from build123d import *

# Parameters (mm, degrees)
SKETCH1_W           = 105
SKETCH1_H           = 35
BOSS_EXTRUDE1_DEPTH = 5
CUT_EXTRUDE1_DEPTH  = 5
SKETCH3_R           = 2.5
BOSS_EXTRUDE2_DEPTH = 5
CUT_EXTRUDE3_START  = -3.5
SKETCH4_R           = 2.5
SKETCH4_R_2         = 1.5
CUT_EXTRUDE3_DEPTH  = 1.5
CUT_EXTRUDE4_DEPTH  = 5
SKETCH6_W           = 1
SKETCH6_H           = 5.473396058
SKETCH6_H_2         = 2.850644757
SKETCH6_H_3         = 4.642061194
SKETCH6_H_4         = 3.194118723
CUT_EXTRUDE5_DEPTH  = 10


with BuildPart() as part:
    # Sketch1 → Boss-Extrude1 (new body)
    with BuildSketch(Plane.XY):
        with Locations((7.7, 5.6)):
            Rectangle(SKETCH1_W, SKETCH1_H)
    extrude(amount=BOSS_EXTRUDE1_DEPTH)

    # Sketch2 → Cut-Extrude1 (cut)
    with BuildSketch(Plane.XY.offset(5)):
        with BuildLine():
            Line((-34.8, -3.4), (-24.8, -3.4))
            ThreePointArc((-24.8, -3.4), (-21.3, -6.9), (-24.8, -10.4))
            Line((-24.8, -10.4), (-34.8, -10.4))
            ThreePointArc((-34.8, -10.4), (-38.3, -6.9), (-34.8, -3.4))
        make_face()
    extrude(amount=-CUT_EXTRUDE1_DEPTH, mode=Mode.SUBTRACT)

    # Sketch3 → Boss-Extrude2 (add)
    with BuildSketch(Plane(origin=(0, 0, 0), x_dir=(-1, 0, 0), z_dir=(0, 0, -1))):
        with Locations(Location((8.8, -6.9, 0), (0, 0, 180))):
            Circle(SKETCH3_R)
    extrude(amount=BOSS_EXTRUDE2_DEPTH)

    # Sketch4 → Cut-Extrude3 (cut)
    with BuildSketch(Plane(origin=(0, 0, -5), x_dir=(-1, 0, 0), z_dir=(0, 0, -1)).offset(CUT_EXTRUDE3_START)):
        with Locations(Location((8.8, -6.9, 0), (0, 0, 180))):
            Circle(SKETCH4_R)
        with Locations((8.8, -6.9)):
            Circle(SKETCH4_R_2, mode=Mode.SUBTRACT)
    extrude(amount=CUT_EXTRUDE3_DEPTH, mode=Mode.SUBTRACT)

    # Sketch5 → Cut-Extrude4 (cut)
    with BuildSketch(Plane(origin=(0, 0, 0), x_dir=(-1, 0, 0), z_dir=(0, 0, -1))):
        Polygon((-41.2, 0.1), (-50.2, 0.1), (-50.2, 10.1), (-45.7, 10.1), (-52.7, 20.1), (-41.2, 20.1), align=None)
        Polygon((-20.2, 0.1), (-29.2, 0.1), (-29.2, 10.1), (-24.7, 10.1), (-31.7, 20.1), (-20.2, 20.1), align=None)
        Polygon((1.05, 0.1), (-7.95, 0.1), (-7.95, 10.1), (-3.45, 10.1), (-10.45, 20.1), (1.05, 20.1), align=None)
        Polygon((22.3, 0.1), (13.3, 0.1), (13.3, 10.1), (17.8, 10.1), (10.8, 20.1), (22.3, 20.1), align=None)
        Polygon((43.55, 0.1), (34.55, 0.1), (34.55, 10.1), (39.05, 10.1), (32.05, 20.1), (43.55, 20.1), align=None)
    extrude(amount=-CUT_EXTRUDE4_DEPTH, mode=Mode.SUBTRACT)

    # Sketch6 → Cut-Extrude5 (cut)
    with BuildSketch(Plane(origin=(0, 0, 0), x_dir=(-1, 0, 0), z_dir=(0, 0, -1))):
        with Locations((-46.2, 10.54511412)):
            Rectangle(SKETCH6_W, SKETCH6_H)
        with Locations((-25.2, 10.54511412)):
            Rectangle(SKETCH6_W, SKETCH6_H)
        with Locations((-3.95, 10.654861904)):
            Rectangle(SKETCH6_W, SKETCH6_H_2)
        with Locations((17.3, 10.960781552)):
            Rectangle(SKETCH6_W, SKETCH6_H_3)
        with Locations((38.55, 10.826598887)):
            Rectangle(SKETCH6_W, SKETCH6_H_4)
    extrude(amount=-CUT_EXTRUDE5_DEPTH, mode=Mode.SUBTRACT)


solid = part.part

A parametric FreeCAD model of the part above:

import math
import FreeCAD as App
import Part
import Sketcher

V = App.Vector

doc = App.newDocument("Part")
body = doc.addObject("PartDesign::Body", "Body")

sketch1 = body.newObject("Sketcher::SketchObject", "Sketch")
sketch1.AttachmentSupport = (doc.getObject("XY_Plane"), [""])
sketch1.MapMode = "FlatFace"
sketch1.addGeometry(Part.LineSegment(V(-44.8, 23.1, 0), V(-44.8, -11.9, 0)), False)
sketch1.addGeometry(Part.LineSegment(V(-44.8, -11.9, 0), V(60.2, -11.9, 0)), False)
sketch1.addGeometry(Part.LineSegment(V(60.2, -11.9, 0), V(60.2, 23.1, 0)), False)
sketch1.addGeometry(Part.LineSegment(V(60.2, 23.1, 0), V(-44.8, 23.1, 0)), False)
sketch1.addConstraint(Sketcher.Constraint("Coincident", 0, 2, 1, 1))
sketch1.addConstraint(Sketcher.Constraint("Coincident", 1, 2, 2, 1))
sketch1.addConstraint(Sketcher.Constraint("Coincident", 2, 2, 3, 1))
sketch1.addConstraint(Sketcher.Constraint("Coincident", 3, 2, 0, 1))
sketch1.addConstraint(Sketcher.Constraint("Vertical", 0))
sketch1.addConstraint(Sketcher.Constraint("Horizontal", 1))
sketch1.addConstraint(Sketcher.Constraint("Vertical", 2))
sketch1.addConstraint(Sketcher.Constraint("Horizontal", 3))
sketch1.addConstraint(Sketcher.Constraint("DistanceX", 1, 1, 1, 2, 105.0))
sketch1.addConstraint(Sketcher.Constraint("DistanceY", 0, 2, 0, 1, 35.0))
sketch1.addConstraint(Sketcher.Constraint("DistanceX", 0, 2, -1, 1, 44.8))
sketch1.addConstraint(Sketcher.Constraint("DistanceY", 0, 2, -1, 1, 11.9))
pad1 = body.newObject("PartDesign::Pad", "Pad")
pad1.Profile = sketch1
pad1.Length = 5

sketch2 = body.newObject("Sketcher::SketchObject", "Sketch001")
sketch2.AttachmentSupport = (doc.getObject("XY_Plane"), [""])
sketch2.MapMode = "FlatFace"
sketch2.AttachmentOffset = App.Placement(V(0, 0, 5), App.Rotation())
sketch2.addGeometry(Part.LineSegment(V(-24.8, -3.4, 0), V(-34.8, -3.4, 0)), False)
sketch2.addGeometry(Part.ArcOfCircle(Part.Circle(V(-34.8, -6.9, 0), V(0, 0, 1), 3.5), math.radians(90), math.radians(270)), False)
sketch2.addGeometry(Part.LineSegment(V(-34.8, -10.4, 0), V(-24.8, -10.4, 0)), False)
sketch2.addGeometry(Part.ArcOfCircle(Part.Circle(V(-24.8, -6.9, 0), V(0, 0, 1), 3.5), math.radians(-90), math.radians(90)), False)
sketch2.addConstraint(Sketcher.Constraint("Tangent", 0, 2, 1, 1))
sketch2.addConstraint(Sketcher.Constraint("Tangent", 1, 2, 2, 1))
sketch2.addConstraint(Sketcher.Constraint("Tangent", 2, 2, 3, 1))
sketch2.addConstraint(Sketcher.Constraint("Tangent", 3, 2, 0, 1))
sketch2.addConstraint(Sketcher.Constraint("Horizontal", 0))
sketch2.addConstraint(Sketcher.Constraint("Horizontal", 2))
sketch2.addConstraint(Sketcher.Constraint("Radius", 1, 3.5))
sketch2.addConstraint(Sketcher.Constraint("DistanceX", 0, 2, 0, 1, 10.0))
sketch2.addConstraint(Sketcher.Constraint("DistanceX", 1, 3, -1, 1, 34.8))
sketch2.addConstraint(Sketcher.Constraint("DistanceY", 1, 3, -1, 1, 6.9))
pocket1 = body.newObject("PartDesign::Pocket", "Pocket")
pocket1.Profile = sketch2
pocket1.Length = 5

sketch3 = body.newObject("Sketcher::SketchObject", "Sketch002")
sketch3.AttachmentSupport = (doc.getObject("XY_Plane"), [""])
sketch3.MapMode = "FlatFace"
sketch3.addGeometry(Part.Circle(V(-8.8, -6.9, 0), V(0, 0, 1), 2.5), False)
sketch3.addConstraint(Sketcher.Constraint("Diameter", 0, 5.0))
sketch3.addConstraint(Sketcher.Constraint("DistanceX", 0, 3, -1, 1, 8.8))
sketch3.addConstraint(Sketcher.Constraint("DistanceY", 0, 3, -1, 1, 6.9))
pad2 = body.newObject("PartDesign::Pad", "Pad001")
pad2.Profile = sketch3
pad2.Length = 5
pad2.Reversed = True

sketch4 = body.newObject("Sketcher::SketchObject", "Sketch003")
sketch4.AttachmentSupport = (doc.getObject("XY_Plane"), [""])
sketch4.MapMode = "FlatFace"
sketch4.AttachmentOffset = App.Placement(V(0, 0, -1.5), App.Rotation())
sketch4.addGeometry(Part.Circle(V(-8.8, -6.9, 0), V(0, 0, 1), 2.5), False)
sketch4.addGeometry(Part.Circle(V(-8.8, -6.9, 0), V(0, 0, 1), 1.5), False)
sketch4.addConstraint(Sketcher.Constraint("Coincident", 1, 3, 0, 3))
sketch4.addConstraint(Sketcher.Constraint("Diameter", 0, 5.0))
sketch4.addConstraint(Sketcher.Constraint("Diameter", 1, 3.0))
sketch4.addConstraint(Sketcher.Constraint("DistanceX", 0, 3, -1, 1, 8.8))
sketch4.addConstraint(Sketcher.Constraint("DistanceY", 0, 3, -1, 1, 6.9))
pocket2 = body.newObject("PartDesign::Pocket", "Pocket001")
pocket2.Profile = sketch4
pocket2.Length = 1.5

sketch5 = body.newObject("Sketcher::SketchObject", "Sketch004")
sketch5.AttachmentSupport = (doc.getObject("XY_Plane"), [""])
sketch5.MapMode = "FlatFace"
sketch5.addGeometry(Part.LineSegment(V(50.2, 0.1, 0), V(41.2, 0.1, 0)), False)
sketch5.addGeometry(Part.LineSegment(V(41.2, 0.1, 0), V(41.2, 20.1, 0)), False)
sketch5.addGeometry(Part.LineSegment(V(41.2, 20.1, 0), V(52.7, 20.1, 0)), False)
sketch5.addGeometry(Part.LineSegment(V(52.7, 20.1, 0), V(45.7, 10.1, 0)), False)
sketch5.addGeometry(Part.LineSegment(V(45.7, 10.1, 0), V(50.2, 10.1, 0)), False)
sketch5.addGeometry(Part.LineSegment(V(50.2, 10.1, 0), V(50.2, 0.1, 0)), False)
sketch5.addGeometry(Part.LineSegment(V(29.2, 0.1, 0), V(20.2, 0.1, 0)), False)
sketch5.addGeometry(Part.LineSegment(V(20.2, 0.1, 0), V(20.2, 20.1, 0)), False)
sketch5.addGeometry(Part.LineSegment(V(20.2, 20.1, 0), V(31.7, 20.1, 0)), False)
sketch5.addGeometry(Part.LineSegment(V(31.7, 20.1, 0), V(24.7, 10.1, 0)), False)
sketch5.addGeometry(Part.LineSegment(V(24.7, 10.1, 0), V(29.2, 10.1, 0)), False)
sketch5.addGeometry(Part.LineSegment(V(29.2, 10.1, 0), V(29.2, 0.1, 0)), False)
sketch5.addGeometry(Part.LineSegment(V(7.95, 0.1, 0), V(-1.05, 0.1, 0)), False)
sketch5.addGeometry(Part.LineSegment(V(-1.05, 0.1, 0), V(-1.05, 20.1, 0)), False)
sketch5.addGeometry(Part.LineSegment(V(-1.05, 20.1, 0), V(10.45, 20.1, 0)), False)
sketch5.addGeometry(Part.LineSegment(V(10.45, 20.1, 0), V(3.45, 10.1, 0)), False)
sketch5.addGeometry(Part.LineSegment(V(3.45, 10.1, 0), V(7.95, 10.1, 0)), False)
sketch5.addGeometry(Part.LineSegment(V(7.95, 10.1, 0), V(7.95, 0.1, 0)), False)
sketch5.addGeometry(Part.LineSegment(V(-13.3, 0.1, 0), V(-22.3, 0.1, 0)), False)
sketch5.addGeometry(Part.LineSegment(V(-22.3, 0.1, 0), V(-22.3, 20.1, 0)), False)
sketch5.addGeometry(Part.LineSegment(V(-22.3, 20.1, 0), V(-10.8, 20.1, 0)), False)
sketch5.addGeometry(Part.LineSegment(V(-10.8, 20.1, 0), V(-17.8, 10.1, 0)), False)
sketch5.addGeometry(Part.LineSegment(V(-17.8, 10.1, 0), V(-13.3, 10.1, 0)), False)
sketch5.addGeometry(Part.LineSegment(V(-13.3, 10.1, 0), V(-13.3, 0.1, 0)), False)
sketch5.addGeometry(Part.LineSegment(V(-34.55, 0.1, 0), V(-43.55, 0.1, 0)), False)
sketch5.addGeometry(Part.LineSegment(V(-43.55, 0.1, 0), V(-43.55, 20.1, 0)), False)
sketch5.addGeometry(Part.LineSegment(V(-43.55, 20.1, 0), V(-32.05, 20.1, 0)), False)
sketch5.addGeometry(Part.LineSegment(V(-32.05, 20.1, 0), V(-39.05, 10.1, 0)), False)
sketch5.addGeometry(Part.LineSegment(V(-39.05, 10.1, 0), V(-34.55, 10.1, 0)), False)
sketch5.addGeometry(Part.LineSegment(V(-34.55, 10.1, 0), V(-34.55, 0.1, 0)), False)
sketch5.addConstraint(Sketcher.Constraint("Coincident", 0, 2, 1, 1))
sketch5.addConstraint(Sketcher.Constraint("Coincident", 1, 2, 2, 1))
sketch5.addConstraint(Sketcher.Constraint("Coincident", 2, 2, 3, 1))
sketch5.addConstraint(Sketcher.Constraint("Coincident", 3, 2, 4, 1))
sketch5.addConstraint(Sketcher.Constraint("Coincident", 4, 2, 5, 1))
sketch5.addConstraint(Sketcher.Constraint("Coincident", 5, 2, 0, 1))
sketch5.addConstraint(Sketcher.Constraint("Coincident", 6, 2, 7, 1))
sketch5.addConstraint(Sketcher.Constraint("Coincident", 7, 2, 8, 1))
sketch5.addConstraint(Sketcher.Constraint("Coincident", 8, 2, 9, 1))
sketch5.addConstraint(Sketcher.Constraint("Coincident", 9, 2, 10, 1))
sketch5.addConstraint(Sketcher.Constraint("Coincident", 10, 2, 11, 1))
sketch5.addConstraint(Sketcher.Constraint("Coincident", 11, 2, 6, 1))
sketch5.addConstraint(Sketcher.Constraint("Coincident", 12, 2, 13, 1))
sketch5.addConstraint(Sketcher.Constraint("Coincident", 13, 2, 14, 1))
sketch5.addConstraint(Sketcher.Constraint("Coincident", 14, 2, 15, 1))
sketch5.addConstraint(Sketcher.Constraint("Coincident", 15, 2, 16, 1))
sketch5.addConstraint(Sketcher.Constraint("Coincident", 16, 2, 17, 1))
sketch5.addConstraint(Sketcher.Constraint("Coincident", 17, 2, 12, 1))
sketch5.addConstraint(Sketcher.Constraint("Coincident", 18, 2, 19, 1))
sketch5.addConstraint(Sketcher.Constraint("Coincident", 19, 2, 20, 1))
sketch5.addConstraint(Sketcher.Constraint("Coincident", 20, 2, 21, 1))
sketch5.addConstraint(Sketcher.Constraint("Coincident", 21, 2, 22, 1))
sketch5.addConstraint(Sketcher.Constraint("Coincident", 22, 2, 23, 1))
sketch5.addConstraint(Sketcher.Constraint("Coincident", 23, 2, 18, 1))
sketch5.addConstraint(Sketcher.Constraint("Coincident", 24, 2, 25, 1))
sketch5.addConstraint(Sketcher.Constraint("Coincident", 25, 2, 26, 1))
sketch5.addConstraint(Sketcher.Constraint("Coincident", 26, 2, 27, 1))
sketch5.addConstraint(Sketcher.Constraint("Coincident", 27, 2, 28, 1))
sketch5.addConstraint(Sketcher.Constraint("Coincident", 28, 2, 29, 1))
sketch5.addConstraint(Sketcher.Constraint("Coincident", 29, 2, 24, 1))
sketch5.addConstraint(Sketcher.Constraint("Horizontal", 0))
sketch5.addConstraint(Sketcher.Constraint("Vertical", 1))
sketch5.addConstraint(Sketcher.Constraint("Horizontal", 2))
sketch5.addConstraint(Sketcher.Constraint("Horizontal", 4))
sketch5.addConstraint(Sketcher.Constraint("Vertical", 5))
sketch5.addConstraint(Sketcher.Constraint("Horizontal", 6))
sketch5.addConstraint(Sketcher.Constraint("Vertical", 7))
sketch5.addConstraint(Sketcher.Constraint("Horizontal", 8))
sketch5.addConstraint(Sketcher.Constraint("Horizontal", 10))
sketch5.addConstraint(Sketcher.Constraint("Vertical", 11))
sketch5.addConstraint(Sketcher.Constraint("Horizontal", 12))
sketch5.addConstraint(Sketcher.Constraint("Vertical", 13))
sketch5.addConstraint(Sketcher.Constraint("Horizontal", 14))
sketch5.addConstraint(Sketcher.Constraint("Horizontal", 16))
sketch5.addConstraint(Sketcher.Constraint("Vertical", 17))
sketch5.addConstraint(Sketcher.Constraint("Horizontal", 18))
sketch5.addConstraint(Sketcher.Constraint("Vertical", 19))
sketch5.addConstraint(Sketcher.Constraint("Horizontal", 20))
sketch5.addConstraint(Sketcher.Constraint("Horizontal", 22))
sketch5.addConstraint(Sketcher.Constraint("Vertical", 23))
sketch5.addConstraint(Sketcher.Constraint("Horizontal", 24))
sketch5.addConstraint(Sketcher.Constraint("Vertical", 25))
sketch5.addConstraint(Sketcher.Constraint("Horizontal", 26))
sketch5.addConstraint(Sketcher.Constraint("Horizontal", 28))
sketch5.addConstraint(Sketcher.Constraint("Vertical", 29))
sketch5.addConstraint(Sketcher.Constraint("Parallel", 3, 9))
sketch5.addConstraint(Sketcher.Constraint("Parallel", 9, 15))
sketch5.addConstraint(Sketcher.Constraint("Parallel", 15, 21))
sketch5.addConstraint(Sketcher.Constraint("Parallel", 21, 27))
sketch5.addConstraint(Sketcher.Constraint("Horizontal", 5, 2, 6, 2))
sketch5.addConstraint(Sketcher.Constraint("Horizontal", 2, 2, 7, 2))
sketch5.addConstraint(Sketcher.Constraint("Horizontal", 4, 2, 9, 2))
sketch5.addConstraint(Sketcher.Constraint("Horizontal", 11, 2, 12, 2))
sketch5.addConstraint(Sketcher.Constraint("Horizontal", 8, 2, 13, 2))
sketch5.addConstraint(Sketcher.Constraint("Horizontal", 10, 2, 15, 2))
sketch5.addConstraint(Sketcher.Constraint("Horizontal", 17, 2, 18, 2))
sketch5.addConstraint(Sketcher.Constraint("Horizontal", 14, 2, 19, 2))
sketch5.addConstraint(Sketcher.Constraint("Horizontal", 16, 2, 21, 2))
sketch5.addConstraint(Sketcher.Constraint("Horizontal", 23, 2, 24, 2))
sketch5.addConstraint(Sketcher.Constraint("Horizontal", 20, 2, 25, 2))
sketch5.addConstraint(Sketcher.Constraint("Horizontal", 22, 2, 27, 2))
sketch5.addConstraint(Sketcher.Constraint("Equal", 0, 6))
sketch5.addConstraint(Sketcher.Constraint("Equal", 2, 8))
sketch5.addConstraint(Sketcher.Constraint("Equal", 6, 12))
sketch5.addConstraint(Sketcher.Constraint("Equal", 8, 14))
sketch5.addConstraint(Sketcher.Constraint("Equal", 12, 18))
sketch5.addConstraint(Sketcher.Constraint("Equal", 14, 20))
sketch5.addConstraint(Sketcher.Constraint("Equal", 18, 24))
sketch5.addConstraint(Sketcher.Constraint("Equal", 20, 26))
sketch5.addConstraint(Sketcher.Constraint("DistanceX", 0, 2, 0, 1, 9.0))
sketch5.addConstraint(Sketcher.Constraint("DistanceY", 1, 1, 1, 2, 20.0))
sketch5.addConstraint(Sketcher.Constraint("DistanceY", 5, 2, 5, 1, 10.0))
sketch5.addConstraint(Sketcher.Constraint("DistanceX", 2, 1, 2, 2, 11.5))
sketch5.addConstraint(Sketcher.Constraint("DistanceX", 4, 1, 4, 2, 4.5))
sketch5.addConstraint(Sketcher.Constraint("DistanceX", 6, 2, 0, 2, 21.0))
sketch5.addConstraint(Sketcher.Constraint("DistanceX", -1, 1, 0, 2, 41.2))
sketch5.addConstraint(Sketcher.Constraint("DistanceY", -1, 1, 0, 2, 0.1))
sketch5.addConstraint(Sketcher.Constraint("DistanceX", 18, 2, -1, 1, 22.3))
sketch5.addConstraint(Sketcher.Constraint("DistanceX", 12, 2, -1, 1, 1.05))
sketch5.addConstraint(Sketcher.Constraint("DistanceX", 24, 2, -1, 1, 43.55))
pocket3 = body.newObject("PartDesign::Pocket", "Pocket002")
pocket3.Profile = sketch5
pocket3.Length = 5
pocket3.Reversed = True

sketch6 = body.newObject("Sketcher::SketchObject", "Sketch005")
sketch6.AttachmentSupport = (doc.getObject("XY_Plane"), [""])
sketch6.MapMode = "FlatFace"
sketch6.addGeometry(Part.LineSegment(V(46.7, 13.281812, 0), V(46.7, 7.808416, 0)), False)
sketch6.addGeometry(Part.LineSegment(V(46.7, 7.808416, 0), V(45.7, 7.808416, 0)), False)
sketch6.addGeometry(Part.LineSegment(V(45.7, 7.808416, 0), V(45.7, 13.281812, 0)), False)
sketch6.addGeometry(Part.LineSegment(V(45.7, 13.281812, 0), V(46.7, 13.281812, 0)), False)
sketch6.addGeometry(Part.LineSegment(V(25.7, 13.281812, 0), V(25.7, 7.808416, 0)), False)
sketch6.addGeometry(Part.LineSegment(V(25.7, 7.808416, 0), V(24.7, 7.808416, 0)), False)
sketch6.addGeometry(Part.LineSegment(V(24.7, 7.808416, 0), V(24.7, 13.281812, 0)), False)
sketch6.addGeometry(Part.LineSegment(V(24.7, 13.281812, 0), V(25.7, 13.281812, 0)), False)
sketch6.addGeometry(Part.LineSegment(V(4.45, 12.080184, 0), V(4.45, 9.22954, 0)), False)
sketch6.addGeometry(Part.LineSegment(V(4.45, 9.22954, 0), V(3.45, 9.22954, 0)), False)
sketch6.addGeometry(Part.LineSegment(V(3.45, 9.22954, 0), V(3.45, 12.080184, 0)), False)
sketch6.addGeometry(Part.LineSegment(V(3.45, 12.080184, 0), V(4.45, 12.080184, 0)), False)
sketch6.addGeometry(Part.LineSegment(V(-16.8, 13.281812, 0), V(-16.8, 8.639751, 0)), False)
sketch6.addGeometry(Part.LineSegment(V(-16.8, 8.639751, 0), V(-17.8, 8.639751, 0)), False)
sketch6.addGeometry(Part.LineSegment(V(-17.8, 8.639751, 0), V(-17.8, 13.281812, 0)), False)
sketch6.addGeometry(Part.LineSegment(V(-17.8, 13.281812, 0), V(-16.8, 13.281812, 0)), False)
sketch6.addGeometry(Part.LineSegment(V(-38.05, 12.423658, 0), V(-38.05, 9.22954, 0)), False)
sketch6.addGeometry(Part.LineSegment(V(-38.05, 9.22954, 0), V(-39.05, 9.22954, 0)), False)
sketch6.addGeometry(Part.LineSegment(V(-39.05, 9.22954, 0), V(-39.05, 12.423658, 0)), False)
sketch6.addGeometry(Part.LineSegment(V(-39.05, 12.423658, 0), V(-38.05, 12.423658, 0)), False)
sketch6.addConstraint(Sketcher.Constraint("Coincident", 0, 2, 1, 1))
sketch6.addConstraint(Sketcher.Constraint("Coincident", 1, 2, 2, 1))
sketch6.addConstraint(Sketcher.Constraint("Coincident", 2, 2, 3, 1))
sketch6.addConstraint(Sketcher.Constraint("Coincident", 3, 2, 0, 1))
sketch6.addConstraint(Sketcher.Constraint("Coincident", 4, 2, 5, 1))
sketch6.addConstraint(Sketcher.Constraint("Coincident", 5, 2, 6, 1))
sketch6.addConstraint(Sketcher.Constraint("Coincident", 6, 2, 7, 1))
sketch6.addConstraint(Sketcher.Constraint("Coincident", 7, 2, 4, 1))
sketch6.addConstraint(Sketcher.Constraint("Coincident", 8, 2, 9, 1))
sketch6.addConstraint(Sketcher.Constraint("Coincident", 9, 2, 10, 1))
sketch6.addConstraint(Sketcher.Constraint("Coincident", 10, 2, 11, 1))
sketch6.addConstraint(Sketcher.Constraint("Coincident", 11, 2, 8, 1))
sketch6.addConstraint(Sketcher.Constraint("Coincident", 12, 2, 13, 1))
sketch6.addConstraint(Sketcher.Constraint("Coincident", 13, 2, 14, 1))
sketch6.addConstraint(Sketcher.Constraint("Coincident", 14, 2, 15, 1))
sketch6.addConstraint(Sketcher.Constraint("Coincident", 15, 2, 12, 1))
sketch6.addConstraint(Sketcher.Constraint("Coincident", 16, 2, 17, 1))
sketch6.addConstraint(Sketcher.Constraint("Coincident", 17, 2, 18, 1))
sketch6.addConstraint(Sketcher.Constraint("Coincident", 18, 2, 19, 1))
sketch6.addConstraint(Sketcher.Constraint("Coincident", 19, 2, 16, 1))
sketch6.addConstraint(Sketcher.Constraint("Vertical", 0))
sketch6.addConstraint(Sketcher.Constraint("Horizontal", 1))
sketch6.addConstraint(Sketcher.Constraint("Vertical", 2))
sketch6.addConstraint(Sketcher.Constraint("Horizontal", 3))
sketch6.addConstraint(Sketcher.Constraint("Vertical", 4))
sketch6.addConstraint(Sketcher.Constraint("Horizontal", 5))
sketch6.addConstraint(Sketcher.Constraint("Vertical", 6))
sketch6.addConstraint(Sketcher.Constraint("Horizontal", 7))
sketch6.addConstraint(Sketcher.Constraint("Vertical", 8))
sketch6.addConstraint(Sketcher.Constraint("Horizontal", 9))
sketch6.addConstraint(Sketcher.Constraint("Vertical", 10))
sketch6.addConstraint(Sketcher.Constraint("Horizontal", 11))
sketch6.addConstraint(Sketcher.Constraint("Vertical", 12))
sketch6.addConstraint(Sketcher.Constraint("Horizontal", 13))
sketch6.addConstraint(Sketcher.Constraint("Vertical", 14))
sketch6.addConstraint(Sketcher.Constraint("Horizontal", 15))
sketch6.addConstraint(Sketcher.Constraint("Vertical", 16))
sketch6.addConstraint(Sketcher.Constraint("Horizontal", 17))
sketch6.addConstraint(Sketcher.Constraint("Vertical", 18))
sketch6.addConstraint(Sketcher.Constraint("Horizontal", 19))
sketch6.addConstraint(Sketcher.Constraint("Horizontal", 1, 2, 4, 2))
sketch6.addConstraint(Sketcher.Constraint("Horizontal", 3, 2, 6, 2))
sketch6.addConstraint(Sketcher.Constraint("Horizontal", 7, 2, 14, 2))
sketch6.addConstraint(Sketcher.Constraint("Horizontal", 9, 2, 16, 2))
sketch6.addConstraint(Sketcher.Constraint("Equal", 3, 5))
sketch6.addConstraint(Sketcher.Constraint("Equal", 7, 9))
sketch6.addConstraint(Sketcher.Constraint("Equal", 11, 13))
sketch6.addConstraint(Sketcher.Constraint("Equal", 15, 17))
sketch6.addConstraint(Sketcher.Constraint("DistanceX", 1, 2, 1, 1, 1.0))
sketch6.addConstraint(Sketcher.Constraint("DistanceX", 4, 2, 1, 2, 20.0))
sketch6.addConstraint(Sketcher.Constraint("DistanceX", -1, 1, 0, 2, 46.7))
sketch6.addConstraint(Sketcher.Constraint("DistanceX", 12, 2, -1, 1, 16.8))
sketch6.addConstraint(Sketcher.Constraint("DistanceX", 16, 2, 9, 2, 41.5))
sketch6.addConstraint(Sketcher.Constraint("DistanceX", -1, 1, 8, 2, 4.45))
sketch6.addConstraint(Sketcher.Constraint("DistanceY", 12, 2, 12, 1, 4.642061))
sketch6.addConstraint(Sketcher.Constraint("DistanceY", 16, 2, 16, 1, 3.194119))
sketch6.addConstraint(Sketcher.Constraint("DistanceY", 0, 2, 0, 1, 5.473396))
sketch6.addConstraint(Sketcher.Constraint("DistanceY", 8, 2, 8, 1, 2.850645))
sketch6.addConstraint(Sketcher.Constraint("DistanceY", -1, 1, 8, 2, 9.22954))
sketch6.addConstraint(Sketcher.Constraint("DistanceY", -1, 1, 12, 2, 8.639751))
pocket4 = body.newObject("PartDesign::Pocket", "Pocket003")
pocket4.Profile = sketch6
pocket4.Length = 10
pocket4.Reversed = True

doc.recompute()
